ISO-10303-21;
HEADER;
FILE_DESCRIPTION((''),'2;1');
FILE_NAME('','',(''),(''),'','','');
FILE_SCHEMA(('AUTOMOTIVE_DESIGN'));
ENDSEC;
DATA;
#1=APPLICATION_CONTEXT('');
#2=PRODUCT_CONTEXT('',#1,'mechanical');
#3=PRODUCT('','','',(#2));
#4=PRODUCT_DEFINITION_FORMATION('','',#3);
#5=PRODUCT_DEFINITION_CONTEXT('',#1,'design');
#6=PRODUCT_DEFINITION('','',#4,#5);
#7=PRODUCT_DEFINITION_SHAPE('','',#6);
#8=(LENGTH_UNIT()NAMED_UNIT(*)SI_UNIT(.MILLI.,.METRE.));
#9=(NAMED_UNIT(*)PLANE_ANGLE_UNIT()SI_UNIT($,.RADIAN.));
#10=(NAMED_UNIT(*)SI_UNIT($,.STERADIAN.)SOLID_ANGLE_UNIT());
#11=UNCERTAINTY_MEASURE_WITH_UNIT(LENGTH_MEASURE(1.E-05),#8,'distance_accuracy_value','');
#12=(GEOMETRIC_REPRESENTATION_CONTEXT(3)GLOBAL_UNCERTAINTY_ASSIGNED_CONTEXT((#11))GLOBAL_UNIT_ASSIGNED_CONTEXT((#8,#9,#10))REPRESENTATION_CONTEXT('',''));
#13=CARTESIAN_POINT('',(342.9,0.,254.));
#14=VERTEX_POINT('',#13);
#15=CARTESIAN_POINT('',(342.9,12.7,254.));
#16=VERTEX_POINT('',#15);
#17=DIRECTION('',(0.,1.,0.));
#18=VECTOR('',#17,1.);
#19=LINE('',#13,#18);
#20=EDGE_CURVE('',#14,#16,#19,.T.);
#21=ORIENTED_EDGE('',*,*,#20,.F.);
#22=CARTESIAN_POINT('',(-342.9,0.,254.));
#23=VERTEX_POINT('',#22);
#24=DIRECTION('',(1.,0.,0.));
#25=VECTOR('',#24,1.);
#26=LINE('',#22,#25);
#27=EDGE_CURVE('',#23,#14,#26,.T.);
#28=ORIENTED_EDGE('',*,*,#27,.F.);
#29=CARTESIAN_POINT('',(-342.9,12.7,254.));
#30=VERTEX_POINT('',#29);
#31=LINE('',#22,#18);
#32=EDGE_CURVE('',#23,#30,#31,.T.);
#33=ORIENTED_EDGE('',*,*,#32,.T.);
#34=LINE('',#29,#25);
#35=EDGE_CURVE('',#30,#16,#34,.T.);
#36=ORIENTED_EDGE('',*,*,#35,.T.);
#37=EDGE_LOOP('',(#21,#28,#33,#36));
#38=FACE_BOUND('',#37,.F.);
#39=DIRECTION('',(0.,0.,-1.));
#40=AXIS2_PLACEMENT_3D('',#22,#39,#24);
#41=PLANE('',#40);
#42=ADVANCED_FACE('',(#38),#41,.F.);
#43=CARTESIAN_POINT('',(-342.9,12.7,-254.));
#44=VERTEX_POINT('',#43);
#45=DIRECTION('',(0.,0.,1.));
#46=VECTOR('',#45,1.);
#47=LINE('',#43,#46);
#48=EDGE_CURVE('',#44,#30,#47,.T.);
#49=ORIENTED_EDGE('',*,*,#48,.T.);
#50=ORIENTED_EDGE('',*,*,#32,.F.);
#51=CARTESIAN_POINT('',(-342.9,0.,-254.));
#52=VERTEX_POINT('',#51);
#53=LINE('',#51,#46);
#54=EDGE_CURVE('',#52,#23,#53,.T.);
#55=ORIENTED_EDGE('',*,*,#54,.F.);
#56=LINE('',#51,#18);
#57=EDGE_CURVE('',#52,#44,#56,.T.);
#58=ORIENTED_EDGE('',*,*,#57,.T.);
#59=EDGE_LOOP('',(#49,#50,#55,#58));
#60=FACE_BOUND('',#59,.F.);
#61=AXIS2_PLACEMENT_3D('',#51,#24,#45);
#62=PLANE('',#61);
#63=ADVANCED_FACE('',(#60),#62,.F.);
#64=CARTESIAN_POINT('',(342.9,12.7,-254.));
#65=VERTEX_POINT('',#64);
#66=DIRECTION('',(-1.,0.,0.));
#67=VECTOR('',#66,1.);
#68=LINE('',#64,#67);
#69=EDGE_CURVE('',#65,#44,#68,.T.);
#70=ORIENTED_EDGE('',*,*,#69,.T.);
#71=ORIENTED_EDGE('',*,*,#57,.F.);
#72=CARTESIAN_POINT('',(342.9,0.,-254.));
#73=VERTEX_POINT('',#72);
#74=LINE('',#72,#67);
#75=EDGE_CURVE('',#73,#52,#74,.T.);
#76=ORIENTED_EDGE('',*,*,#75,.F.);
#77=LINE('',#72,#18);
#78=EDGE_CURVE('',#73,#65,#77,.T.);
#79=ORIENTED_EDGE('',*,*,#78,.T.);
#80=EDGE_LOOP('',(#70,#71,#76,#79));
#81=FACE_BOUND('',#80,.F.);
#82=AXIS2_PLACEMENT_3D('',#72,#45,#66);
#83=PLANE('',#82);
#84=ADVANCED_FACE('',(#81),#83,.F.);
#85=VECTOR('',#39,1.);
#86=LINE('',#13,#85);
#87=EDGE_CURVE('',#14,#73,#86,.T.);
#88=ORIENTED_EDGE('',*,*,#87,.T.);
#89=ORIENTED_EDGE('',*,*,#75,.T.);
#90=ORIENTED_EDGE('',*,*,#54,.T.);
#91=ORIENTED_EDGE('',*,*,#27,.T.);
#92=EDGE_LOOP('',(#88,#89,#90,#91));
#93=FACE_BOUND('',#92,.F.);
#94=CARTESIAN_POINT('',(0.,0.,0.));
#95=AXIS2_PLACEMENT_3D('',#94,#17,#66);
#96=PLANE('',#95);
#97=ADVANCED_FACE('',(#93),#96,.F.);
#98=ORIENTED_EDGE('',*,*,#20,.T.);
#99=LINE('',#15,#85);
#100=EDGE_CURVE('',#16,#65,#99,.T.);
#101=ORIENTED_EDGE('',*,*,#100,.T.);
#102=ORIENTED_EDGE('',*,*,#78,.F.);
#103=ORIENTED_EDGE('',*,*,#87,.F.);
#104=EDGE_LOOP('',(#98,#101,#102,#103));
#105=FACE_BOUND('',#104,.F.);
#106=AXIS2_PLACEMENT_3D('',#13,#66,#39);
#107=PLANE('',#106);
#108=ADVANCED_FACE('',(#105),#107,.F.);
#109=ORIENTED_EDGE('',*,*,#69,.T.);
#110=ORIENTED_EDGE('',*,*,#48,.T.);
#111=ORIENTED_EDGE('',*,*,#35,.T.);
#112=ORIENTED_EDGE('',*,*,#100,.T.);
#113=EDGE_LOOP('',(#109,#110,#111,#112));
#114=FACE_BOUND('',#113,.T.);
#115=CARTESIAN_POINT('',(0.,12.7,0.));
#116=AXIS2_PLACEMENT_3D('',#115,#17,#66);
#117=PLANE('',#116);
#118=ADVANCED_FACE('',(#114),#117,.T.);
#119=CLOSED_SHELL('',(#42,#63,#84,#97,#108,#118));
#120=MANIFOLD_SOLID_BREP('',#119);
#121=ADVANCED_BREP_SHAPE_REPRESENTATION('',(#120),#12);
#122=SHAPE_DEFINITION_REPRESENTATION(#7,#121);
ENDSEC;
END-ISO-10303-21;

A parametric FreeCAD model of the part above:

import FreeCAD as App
import Part
import Sketcher
Q = App.Units.Quantity


def add_polygon(sketch, points):
    """Adds a closed chain of lines whose ends are joined by coincident constraints."""
    first, n = sketch.GeometryCount, len(points)
    for a, b in zip(points, points[1:] + points[:1]):
        sketch.addGeometry(Part.LineSegment(App.Vector(*a, 0), App.Vector(*b, 0)), False)
    for i in range(n):
        sketch.addConstraint(Sketcher.Constraint("Coincident", first + i, 2, first + (i + 1) % n, 1))

doc = App.newDocument("Part")
body = doc.addObject("PartDesign::Body", "Body")

# Sketch on XZ plane
sketch1 = body.newObject("Sketcher::SketchObject", "Sketch")
sketch1.AttachmentSupport = (doc.getObject("XZ_Plane"), [""])
sketch1.MapMode = "FlatFace"
add_polygon(sketch1, [(-342.9, -254), (-342.9, 254), (342.9, 254), (342.9, -254)])  # lines 0-3
sketch1.addConstraint([
    Sketcher.Constraint("Vertical", 0),
    Sketcher.Constraint("Horizontal", 1),
    Sketcher.Constraint("Vertical", 2),
    Sketcher.Constraint("Horizontal", 3),
    Sketcher.Constraint("Symmetric", 0, 2, 2, 2, -1, 1),
    Sketcher.Constraint("DistanceX", 1, 1, 1, 2, Q("27 in")),
    Sketcher.Constraint("DistanceY", 0, 1, 0, 2, Q("20 in")),
])
pad1 = body.newObject("PartDesign::Pad", "Pad")
pad1.Profile = sketch1
pad1.Length = Q("0.5 in")
pad1.Reversed = True

doc.recompute()
